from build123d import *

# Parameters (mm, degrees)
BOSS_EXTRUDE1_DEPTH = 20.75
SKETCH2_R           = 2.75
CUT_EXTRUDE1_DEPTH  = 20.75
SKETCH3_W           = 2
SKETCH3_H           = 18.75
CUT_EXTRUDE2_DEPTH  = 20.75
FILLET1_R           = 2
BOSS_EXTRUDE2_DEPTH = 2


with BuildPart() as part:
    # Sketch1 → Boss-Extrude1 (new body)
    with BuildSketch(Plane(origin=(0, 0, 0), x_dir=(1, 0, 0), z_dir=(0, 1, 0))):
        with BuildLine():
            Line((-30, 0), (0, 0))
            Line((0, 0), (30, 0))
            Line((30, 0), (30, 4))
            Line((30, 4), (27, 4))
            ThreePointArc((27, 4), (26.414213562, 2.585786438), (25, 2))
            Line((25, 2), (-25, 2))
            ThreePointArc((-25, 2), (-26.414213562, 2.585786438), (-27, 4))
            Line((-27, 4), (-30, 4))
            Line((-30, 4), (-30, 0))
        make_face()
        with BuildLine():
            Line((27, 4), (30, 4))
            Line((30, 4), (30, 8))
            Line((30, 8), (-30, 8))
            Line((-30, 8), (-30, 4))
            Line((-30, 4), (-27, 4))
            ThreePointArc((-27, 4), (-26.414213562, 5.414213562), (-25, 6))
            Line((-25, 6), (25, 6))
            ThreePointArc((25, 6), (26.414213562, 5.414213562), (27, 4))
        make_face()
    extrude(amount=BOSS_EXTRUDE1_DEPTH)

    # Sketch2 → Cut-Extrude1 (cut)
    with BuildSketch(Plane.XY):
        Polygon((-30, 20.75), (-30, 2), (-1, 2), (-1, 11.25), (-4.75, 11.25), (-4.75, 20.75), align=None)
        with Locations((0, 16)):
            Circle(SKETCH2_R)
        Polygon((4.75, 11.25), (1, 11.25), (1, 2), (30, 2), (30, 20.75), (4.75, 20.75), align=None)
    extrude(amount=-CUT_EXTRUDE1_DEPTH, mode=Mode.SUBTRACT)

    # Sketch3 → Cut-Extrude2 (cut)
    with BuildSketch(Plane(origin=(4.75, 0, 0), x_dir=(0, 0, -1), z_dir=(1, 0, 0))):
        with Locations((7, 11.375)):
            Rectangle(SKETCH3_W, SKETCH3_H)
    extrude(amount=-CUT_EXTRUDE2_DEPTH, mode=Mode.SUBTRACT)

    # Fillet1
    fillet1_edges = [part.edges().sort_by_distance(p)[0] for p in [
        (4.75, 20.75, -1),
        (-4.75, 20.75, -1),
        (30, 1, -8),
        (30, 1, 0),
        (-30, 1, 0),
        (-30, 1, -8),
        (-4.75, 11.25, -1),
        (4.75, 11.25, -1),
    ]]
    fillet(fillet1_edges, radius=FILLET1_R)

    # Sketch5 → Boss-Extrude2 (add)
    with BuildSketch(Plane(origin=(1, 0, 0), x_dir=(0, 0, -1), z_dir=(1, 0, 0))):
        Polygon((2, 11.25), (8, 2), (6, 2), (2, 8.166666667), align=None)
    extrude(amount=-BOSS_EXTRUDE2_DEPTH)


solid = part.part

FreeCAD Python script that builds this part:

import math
import FreeCAD as App
import Part
import Sketcher


def edges_at(feature, points):
    """Names of the edges that pass closest to the given points."""
    edges = feature.Shape.Edges
    near = lambda p: min(range(len(edges)), key=lambda i: edges[i].distToShape(Part.Vertex(*p))[0])
    return sorted({f"Edge{near(p) + 1}" for p in points})

doc = App.newDocument("Part")
params = doc.addObject("Spreadsheet::Sheet", "Params")
for row, (alias, value) in enumerate([
    ("sketch1_radius", "2 mm"),
    ("sketch1_width", "60 mm"),
    ("sketch1_width2", "50 mm"),
    ("sketch1_height", "8 mm"),
    ("pad1_length", "20.75 mm"),
    ("sketch2_diameter", "5.5 mm"),
    ("sketch2_width", "29 mm"),
    ("sketch2_height", "9.5 mm"),
    ("sketch2_width2", "3.75 mm"),
    ("sketch2_height2", "18.75 mm"),
    ("pocket1_length", "20.75 mm"),
    ("sketch3_height", "2 mm"),
    ("sketch3_width", "18.75 mm"),
    ("pocket2_length", "20.75 mm"),
    ("fillet_radius", "2 mm"),
    ("sketch4_height", "2 mm"),
    ("pad2_length", "2 mm"),
], start=1):
    params.set(f"A{row}", alias)
    params.set(f"B{row}", "=" + value)
    params.setAlias(f"B{row}", alias)

body = doc.addObject("PartDesign::Body", "Body")

# Sketch on XZ plane
sketch1 = doc.addObject("Sketcher::SketchObject", "Sketch")
body.addObject(sketch1)
sketch1.AttachmentSupport = (doc.XZ_Plane, [""])
sketch1.MapMode = "FlatFace"
sketch1.addGeometry(Part.LineSegment(App.Vector(-30, 0, 0), App.Vector(30, 0, 0)), False)
sketch1.addGeometry(Part.LineSegment(App.Vector(30, 0, 0), App.Vector(30, -8, 0)), False)
sketch1.addGeometry(Part.LineSegment(App.Vector(30, -8, 0), App.Vector(-30, -8, 0)), False)
sketch1.addGeometry(Part.LineSegment(App.Vector(-30, -8, 0), App.Vector(-30, 0, 0)), False)
sketch1.addGeometry(Part.ArcOfCircle(Part.Circle(App.Vector(25, -4, 0), App.Vector(0, 0, 1), 2), math.radians(0), math.radians(90)), False)
sketch1.addGeometry(Part.LineSegment(App.Vector(25, -2, 0), App.Vector(-25, -2, 0)), False)
sketch1.addGeometry(Part.ArcOfCircle(Part.Circle(App.Vector(-25, -4, 0), App.Vector(0, 0, 1), 2), math.radians(90), math.radians(180)), False)
sketch1.addGeometry(Part.ArcOfCircle(Part.Circle(App.Vector(-25, -4, 0), App.Vector(0, 0, 1), 2), math.radians(-180), math.radians(-90)), False)
sketch1.addGeometry(Part.LineSegment(App.Vector(-25, -6, 0), App.Vector(25, -6, 0)), False)
sketch1.addGeometry(Part.ArcOfCircle(Part.Circle(App.Vector(25, -4, 0), App.Vector(0, 0, 1), 2), math.radians(-90), math.radians(0)), False)
sketch1.addConstraint(Sketcher.Constraint("Coincident", 0, 2, 1, 1))
sketch1.addConstraint(Sketcher.Constraint("Coincident", 1, 2, 2, 1))
sketch1.addConstraint(Sketcher.Constraint("Coincident", 2, 2, 3, 1))
sketch1.addConstraint(Sketcher.Constraint("Coincident", 3, 2, 0, 1))
sketch1.addConstraint(Sketcher.Constraint("Tangent", 4, 2, 5, 1))
sketch1.addConstraint(Sketcher.Constraint("Tangent", 5, 2, 6, 1))
sketch1.addConstraint(Sketcher.Constraint("Tangent", 6, 2, 7, 1))
sketch1.addConstraint(Sketcher.Constraint("Tangent", 7, 2, 8, 1))
sketch1.addConstraint(Sketcher.Constraint("Tangent", 8, 2, 9, 1))
sketch1.addConstraint(Sketcher.Constraint("Tangent", 9, 2, 4, 1))
sketch1.addConstraint(Sketcher.Constraint("Horizontal", 0))
sketch1.addConstraint(Sketcher.Constraint("Vertical", 1))
sketch1.addConstraint(Sketcher.Constraint("Horizontal", 2))
sketch1.addConstraint(Sketcher.Constraint("Vertical", 3))
sketch1.addConstraint(Sketcher.Constraint("Horizontal", 5))
sketch1.addConstraint(Sketcher.Constraint("Horizontal", 8))
sketch1.addConstraint(Sketcher.Constraint("Equal", 4, 6))
sketch1.addConstraint(Sketcher.Constraint("Equal", 6, 7))
sketch1.addConstraint(Sketcher.Constraint("Symmetric", 0, 2, 3, 2, -1, 1))
sketch1.addConstraint(Sketcher.Constraint("Symmetric", 6, 2, 9, 2, -2))
sketch1.addConstraint(Sketcher.Constraint("Horizontal", 9, 3, 6, 2))
sketch1.addConstraint(Sketcher.Constraint("Radius", 4, 2.0))
sketch1.addConstraint(Sketcher.Constraint("DistanceX", 0, 1, 0, 2, 60.0))
sketch1.addConstraint(Sketcher.Constraint("DistanceX", 5, 2, 5, 1, 50.0))
sketch1.addConstraint(Sketcher.Constraint("DistanceY", 1, 2, 1, 1, 8.0))
sketch1.addConstraint(Sketcher.Constraint("DistanceY", 4, 3, -1, 1, 4.0))
sketch1.setExpression("Constraints[21]", "Params.sketch1_radius")
sketch1.setExpression("Constraints[22]", "Params.sketch1_width")
sketch1.setExpression("Constraints[23]", "Params.sketch1_width2")
sketch1.setExpression("Constraints[24]", "Params.sketch1_height")
pad1 = doc.addObject("PartDesign::Pad", "Pad")
body.addObject(pad1)
pad1.Profile = sketch1
pad1.setExpression("Length", "Params.pad1_length")
pad1.Reversed = True

# Sketch on XY plane
sketch2 = doc.addObject("Sketcher::SketchObject", "Sketch001")
body.addObject(sketch2)
sketch2.AttachmentSupport = (doc.XY_Plane, [""])
sketch2.MapMode = "FlatFace"
sketch2.addGeometry(Part.LineSegment(App.Vector(-30, 20.8, 0), App.Vector(-30, 2, 0)), False)
sketch2.addGeometry(Part.LineSegment(App.Vector(-30, 2, 0), App.Vector(-1, 2, 0)), False)
sketch2.addGeometry(Part.LineSegment(App.Vector(-1, 2, 0), App.Vector(-1, 11.2, 0)), False)
sketch2.addGeometry(Part.LineSegment(App.Vector(-1, 11.2, 0), App.Vector(-4.8, 11.2, 0)), False)
sketch2.addGeometry(Part.LineSegment(App.Vector(-4.8, 11.2, 0), App.Vector(-4.8, 20.8, 0)), False)
sketch2.addGeometry(Part.LineSegment(App.Vector(-4.8, 20.8, 0), App.Vector(-30, 20.8, 0)), False)
sketch2.addGeometry(Part.Circle(App.Vector(0, 16, 0), App.Vector(0, 0, 1), 2.8), False)
sketch2.addGeometry(Part.LineSegment(App.Vector(4.8, 11.2, 0), App.Vector(1, 11.2, 0)), False)
sketch2.addGeometry(Part.LineSegment(App.Vector(1, 11.2, 0), App.Vector(1, 2, 0)), False)
sketch2.addGeometry(Part.LineSegment(App.Vector(1, 2, 0), App.Vector(30, 2, 0)), False)
sketch2.addGeometry(Part.LineSegment(App.Vector(30, 2, 0), App.Vector(30, 20.8, 0)), False)
sketch2.addGeometry(Part.LineSegment(App.Vector(30, 20.8, 0), App.Vector(4.8, 20.8, 0)), False)
sketch2.addGeometry(Part.LineSegment(App.Vector(4.8, 20.8, 0), App.Vector(4.8, 11.2, 0)), False)
sketch2.addConstraint(Sketcher.Constraint("Coincident", 0, 2, 1, 1))
sketch2.addConstraint(Sketcher.Constraint("Coincident", 1, 2, 2, 1))
sketch2.addConstraint(Sketcher.Constraint("Coincident", 2, 2, 3, 1))
sketch2.addConstraint(Sketcher.Constraint("Coincident", 3, 2, 4, 1))
sketch2.addConstraint(Sketcher.Constraint("Coincident", 4, 2, 5, 1))
sketch2.addConstraint(Sketcher.Constraint("Coincident", 5, 2, 0, 1))
sketch2.addConstraint(Sketcher.Constraint("Coincident", 7, 2, 8, 1))
sketch2.addConstraint(Sketcher.Constraint("Coincident", 8, 2, 9, 1))
sketch2.addConstraint(Sketcher.Constraint("Coincident", 9, 2, 10, 1))
sketch2.addConstraint(Sketcher.Constraint("Coincident", 10, 2, 11, 1))
sketch2.addConstraint(Sketcher.Constraint("Coincident", 11, 2, 12, 1))
sketch2.addConstraint(Sketcher.Constraint("Coincident", 12, 2, 7, 1))
sketch2.addConstraint(Sketcher.Constraint("Vertical", 0))
sketch2.addConstraint(Sketcher.Constraint("Horizontal", 1))
sketch2.addConstraint(Sketcher.Constraint("Vertical", 2))
sketch2.addConstraint(Sketcher.Constraint("Horizontal", 3))
sketch2.addConstraint(Sketcher.Constraint("Vertical", 4))
sketch2.addConstraint(Sketcher.Constraint("Horizontal", 5))
sketch2.addConstraint(Sketcher.Constraint("Horizontal", 7))
sketch2.addConstraint(Sketcher.Constraint("Vertical", 8))
sketch2.addConstraint(Sketcher.Constraint("Horizontal", 9))
sketch2.addConstraint(Sketcher.Constraint("Vertical", 10))
sketch2.addConstraint(Sketcher.Constraint("Horizontal", 11))
sketch2.addConstraint(Sketcher.Constraint("Vertical", 12))
sketch2.addConstraint(Sketcher.Constraint("Symmetric", 2, 2, 7, 2, -2))
sketch2.addConstraint(Sketcher.Constraint("Symmetric", 0, 2, 9, 2, -2))
sketch2.addConstraint(Sketcher.Constraint("Symmetric", 4, 2, 11, 2, -2))
sketch2.addConstraint(Sketcher.Constraint("PointOnObject", 6, 3, -2))
sketch2.addConstraint(Sketcher.Constraint("Diameter", 6, 5.5))
sketch2.addConstraint(Sketcher.Constraint("DistanceX", 1, 1, 1, 2, 29.0))
sketch2.addConstraint(Sketcher.Constraint("DistanceY", 4, 1, 4, 2, 9.5))
sketch2.addConstraint(Sketcher.Constraint("DistanceY", -1, 1, 6, 3, 16.0))
sketch2.addConstraint(Sketcher.Constraint("DistanceX", 0, 2, -1, 1, 30.0))
sketch2.addConstraint(Sketcher.Constraint("DistanceY", -1, 1, 0, 2, 2.0))
sketch2.addConstraint(Sketcher.Constraint("DistanceX", 3, 2, 3, 1, 3.75))
sketch2.addConstraint(Sketcher.Constraint("DistanceY", 0, 2, 0, 1, 18.75))
sketch2.setExpression("Constraints[28]", "Params.sketch2_diameter")
sketch2.setExpression("Constraints[29]", "Params.sketch2_width")
sketch2.setExpression("Constraints[30]", "Params.sketch2_height")
sketch2.setExpression("Constraints[34]", "Params.sketch2_width2")
sketch2.setExpression("Constraints[35]", "Params.sketch2_height2")
pocket1 = doc.addObject("PartDesign::Pocket", "Pocket")
body.addObject(pocket1)
pocket1.Profile = sketch2
pocket1.setExpression("Length", "Params.pocket1_length")

# Sketch on YZ plane
sketch3 = doc.addObject("Sketcher::SketchObject", "Sketch002")
body.addObject(sketch3)
sketch3.AttachmentSupport = (doc.YZ_Plane, [""])
sketch3.MapMode = "FlatFace"
sketch3.AttachmentOffset = App.Placement(App.Vector(0, 0, 4.75), App.Rotation())
sketch3.addGeometry(Part.LineSegment(App.Vector(20.8, -6, 0), App.Vector(2, -6, 0)), False)
sketch3.addGeometry(Part.LineSegment(App.Vector(2, -6, 0), App.Vector(2, -8, 0)), False)
sketch3.addGeometry(Part.LineSegment(App.Vector(2, -8, 0), App.Vector(20.8, -8, 0)), False)
sketch3.addGeometry(Part.LineSegment(App.Vector(20.8, -8, 0), App.Vector(20.8, -6, 0)), False)
sketch3.addConstraint(Sketcher.Constraint("Coincident", 0, 2, 1, 1))
sketch3.addConstraint(Sketcher.Constraint("Coincident", 1, 2, 2, 1))
sketch3.addConstraint(Sketcher.Constraint("Coincident", 2, 2, 3, 1))
sketch3.addConstraint(Sketcher.Constraint("Coincident", 3, 2, 0, 1))
sketch3.addConstraint(Sketcher.Constraint("Horizontal", 0))
sketch3.addConstraint(Sketcher.Constraint("Vertical", 1))
sketch3.addConstraint(Sketcher.Constraint("Horizontal", 2))
sketch3.addConstraint(Sketcher.Constraint("Vertical", 3))
sketch3.addConstraint(Sketcher.Constraint("DistanceY", 1, 2, 1, 1, 2.0))
sketch3.addConstraint(Sketcher.Constraint("DistanceX", -1, 1, 0, 2, 2.0))
sketch3.addConstraint(Sketcher.Constraint("DistanceY", 0, 2, -1, 1, 6.0))
sketch3.addConstraint(Sketcher.Constraint("DistanceX", 0, 2, 0, 1, 18.75))
sketch3.setExpression("Constraints[8]", "Params.sketch3_height")
sketch3.setExpression("Constraints[11]", "Params.sketch3_width")
pocket2 = doc.addObject("PartDesign::Pocket", "Pocket001")
body.addObject(pocket2)
pocket2.Profile = sketch3
pocket2.setExpression("Length", "Params.pocket2_length")
doc.recompute()

fillet = doc.addObject("PartDesign::Fillet", "Fillet")
body.addObject(fillet)
fillet.Base = (pocket2, edges_at(pocket2, [
    (4.75, 20.75, -1),
    (-4.75, 20.75, -1),
    (30, 1, -8),
    (30, 1, 0),
    (-30, 1, 0),
    (-30, 1, -8),
    (-4.75, 11.25, -1),
    (4.75, 11.25, -1),
]))
fillet.setExpression("Radius", "Params.fillet_radius")

# Sketch on YZ plane
sketch4 = doc.addObject("Sketcher::SketchObject", "Sketch003")
body.addObject(sketch4)
sketch4.AttachmentSupport = (doc.YZ_Plane, [""])
sketch4.MapMode = "FlatFace"
sketch4.AttachmentOffset = App.Placement(App.Vector(0, 0, 1), App.Rotation())
sketch4.addGeometry(Part.LineSegment(App.Vector(2, -8, 0), App.Vector(11.2, -2, 0)), False)
sketch4.addGeometry(Part.LineSegment(App.Vector(11.2, -2, 0), App.Vector(8.2, -2, 0)), False)
sketch4.addGeometry(Part.LineSegment(App.Vector(8.2, -2, 0), App.Vector(2, -6, 0)), False)
sketch4.addGeometry(Part.LineSegment(App.Vector(2, -6, 0), App.Vector(2, -8, 0)), False)
sketch4.addConstraint(Sketcher.Constraint("Coincident", 0, 2, 1, 1))
sketch4.addConstraint(Sketcher.Constraint("Coincident", 1, 2, 2, 1))
sketch4.addConstraint(Sketcher.Constraint("Coincident", 2, 2, 3, 1))
sketch4.addConstraint(Sketcher.Constraint("Coincident", 3, 2, 0, 1))
sketch4.addConstraint(Sketcher.Constraint("Horizontal", 1))
sketch4.addConstraint(Sketcher.Constraint("Vertical", 3))
sketch4.addConstraint(Sketcher.Constraint("Parallel", 0, 2))
sketch4.addConstraint(Sketcher.Constraint("DistanceY", 3, 2, 3, 1, 2.0))
sketch4.addConstraint(Sketcher.Constraint("DistanceY", 0, 2, -1, 1, 2.0))
sketch4.addConstraint(Sketcher.Constraint("DistanceX", -1, 1, 2, 2, 2.0))
sketch4.addConstraint(Sketcher.Constraint("DistanceY", 2, 2, -1, 1, 6.0))
sketch4.addConstraint(Sketcher.Constraint("DistanceX", -1, 1, 0, 2, 11.25))
sketch4.setExpression("Constraints[7]", "Params.sketch4_height")
pad2 = doc.addObject("PartDesign::Pad", "Pad001")
body.addObject(pad2)
pad2.Profile = sketch4
pad2.setExpression("Length", "Params.pad2_length")
pad2.Reversed = True

doc.recompute()
